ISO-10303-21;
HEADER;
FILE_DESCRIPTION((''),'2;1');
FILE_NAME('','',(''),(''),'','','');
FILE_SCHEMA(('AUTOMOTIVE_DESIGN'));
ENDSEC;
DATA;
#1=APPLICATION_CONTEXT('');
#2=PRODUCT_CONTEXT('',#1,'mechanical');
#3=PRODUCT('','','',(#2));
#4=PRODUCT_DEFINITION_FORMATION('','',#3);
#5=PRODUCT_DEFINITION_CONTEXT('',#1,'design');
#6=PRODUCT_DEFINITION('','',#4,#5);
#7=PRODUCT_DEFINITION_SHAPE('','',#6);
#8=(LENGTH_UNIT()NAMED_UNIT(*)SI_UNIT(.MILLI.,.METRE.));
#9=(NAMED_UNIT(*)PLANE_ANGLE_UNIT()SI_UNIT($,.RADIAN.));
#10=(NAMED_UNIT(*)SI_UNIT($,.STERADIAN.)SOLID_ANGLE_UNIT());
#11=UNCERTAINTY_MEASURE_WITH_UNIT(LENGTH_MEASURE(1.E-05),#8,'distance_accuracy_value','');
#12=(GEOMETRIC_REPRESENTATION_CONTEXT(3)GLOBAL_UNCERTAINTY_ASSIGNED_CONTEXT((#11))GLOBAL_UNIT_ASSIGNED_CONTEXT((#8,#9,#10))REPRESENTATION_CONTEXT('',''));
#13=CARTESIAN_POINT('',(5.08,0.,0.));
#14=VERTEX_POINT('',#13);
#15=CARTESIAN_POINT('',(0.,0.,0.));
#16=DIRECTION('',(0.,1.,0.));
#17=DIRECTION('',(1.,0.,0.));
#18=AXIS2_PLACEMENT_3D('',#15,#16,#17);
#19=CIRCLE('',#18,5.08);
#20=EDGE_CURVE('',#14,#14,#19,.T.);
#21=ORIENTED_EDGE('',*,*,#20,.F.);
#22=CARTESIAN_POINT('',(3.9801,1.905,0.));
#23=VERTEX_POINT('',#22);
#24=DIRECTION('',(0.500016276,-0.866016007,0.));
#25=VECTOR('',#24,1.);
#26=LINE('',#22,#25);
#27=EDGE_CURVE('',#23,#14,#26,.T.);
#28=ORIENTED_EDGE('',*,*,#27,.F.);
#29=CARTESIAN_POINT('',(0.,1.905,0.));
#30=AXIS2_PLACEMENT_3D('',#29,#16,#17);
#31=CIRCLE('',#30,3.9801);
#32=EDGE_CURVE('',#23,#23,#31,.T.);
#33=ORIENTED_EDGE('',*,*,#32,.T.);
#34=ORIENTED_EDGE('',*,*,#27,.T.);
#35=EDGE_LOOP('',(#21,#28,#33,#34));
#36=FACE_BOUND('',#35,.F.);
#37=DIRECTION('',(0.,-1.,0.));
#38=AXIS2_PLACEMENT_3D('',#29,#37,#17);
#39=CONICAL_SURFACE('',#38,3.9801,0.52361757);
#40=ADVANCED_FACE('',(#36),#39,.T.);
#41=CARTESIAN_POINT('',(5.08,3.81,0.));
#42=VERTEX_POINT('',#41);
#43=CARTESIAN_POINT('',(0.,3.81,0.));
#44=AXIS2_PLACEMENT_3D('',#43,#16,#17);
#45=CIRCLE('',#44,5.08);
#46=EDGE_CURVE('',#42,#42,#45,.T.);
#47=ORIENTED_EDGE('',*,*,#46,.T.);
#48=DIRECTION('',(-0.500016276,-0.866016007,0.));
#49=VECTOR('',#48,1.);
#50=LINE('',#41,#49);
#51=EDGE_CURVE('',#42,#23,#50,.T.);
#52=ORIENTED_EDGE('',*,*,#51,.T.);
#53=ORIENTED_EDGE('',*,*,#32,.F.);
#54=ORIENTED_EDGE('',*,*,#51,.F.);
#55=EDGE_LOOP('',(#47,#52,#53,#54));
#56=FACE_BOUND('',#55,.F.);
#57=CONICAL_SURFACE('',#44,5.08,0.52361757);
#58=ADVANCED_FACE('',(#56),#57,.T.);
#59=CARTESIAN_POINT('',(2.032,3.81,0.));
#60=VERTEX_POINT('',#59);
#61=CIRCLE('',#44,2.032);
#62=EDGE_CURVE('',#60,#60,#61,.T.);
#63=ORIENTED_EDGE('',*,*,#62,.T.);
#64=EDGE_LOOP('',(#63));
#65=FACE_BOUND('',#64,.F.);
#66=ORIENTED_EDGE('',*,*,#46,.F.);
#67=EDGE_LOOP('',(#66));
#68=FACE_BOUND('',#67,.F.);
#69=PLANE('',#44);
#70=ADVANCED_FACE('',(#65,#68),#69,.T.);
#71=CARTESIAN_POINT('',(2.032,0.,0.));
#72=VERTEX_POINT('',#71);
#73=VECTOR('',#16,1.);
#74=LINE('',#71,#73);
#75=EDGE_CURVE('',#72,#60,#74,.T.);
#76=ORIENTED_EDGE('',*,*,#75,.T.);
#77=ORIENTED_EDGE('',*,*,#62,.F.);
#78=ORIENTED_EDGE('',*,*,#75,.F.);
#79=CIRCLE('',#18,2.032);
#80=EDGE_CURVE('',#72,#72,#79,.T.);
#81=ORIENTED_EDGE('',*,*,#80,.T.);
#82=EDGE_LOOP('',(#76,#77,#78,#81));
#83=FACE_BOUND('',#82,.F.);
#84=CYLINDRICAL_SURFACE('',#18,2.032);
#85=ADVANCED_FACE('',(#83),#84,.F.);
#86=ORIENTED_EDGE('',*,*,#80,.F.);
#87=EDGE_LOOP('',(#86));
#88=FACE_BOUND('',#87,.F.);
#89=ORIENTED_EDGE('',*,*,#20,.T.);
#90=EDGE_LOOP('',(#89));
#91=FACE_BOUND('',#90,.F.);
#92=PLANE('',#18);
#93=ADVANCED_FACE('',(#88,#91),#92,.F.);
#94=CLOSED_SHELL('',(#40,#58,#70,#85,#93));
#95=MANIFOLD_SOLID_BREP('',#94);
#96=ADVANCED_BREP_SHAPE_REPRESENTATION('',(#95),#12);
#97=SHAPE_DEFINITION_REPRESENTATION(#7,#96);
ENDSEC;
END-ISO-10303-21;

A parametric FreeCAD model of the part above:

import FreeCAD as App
import Part
import Sketcher
Q = App.Units.Quantity


def add_polygon(sketch, points):
    """Adds a closed chain of lines whose ends are joined by coincident constraints."""
    first, n = sketch.GeometryCount, len(points)
    for a, b in zip(points, points[1:] + points[:1]):
        sketch.addGeometry(Part.LineSegment(App.Vector(*a, 0), App.Vector(*b, 0)), False)
    for i in range(n):
        sketch.addConstraint(Sketcher.Constraint("Coincident", first + i, 2, first + (i + 1) % n, 1))

doc = App.newDocument("Part")
params = doc.addObject("Spreadsheet::Sheet", "Params")
for row, (alias, value) in enumerate([
    ("sketch1_height", "0.15 in"),
    ("revolution_angle", "360 deg"),
], start=1):
    params.set(f"A{row}", alias)
    params.set(f"B{row}", "=" + value)
    params.setAlias(f"B{row}", alias)

body = doc.addObject("PartDesign::Body", "Body")

sketch1 = doc.addObject("Sketcher::SketchObject", "Sketch")
body.addObject(sketch1)
sketch1.AttachmentSupport = (doc.XY_Plane, [""])
sketch1.MapMode = "FlatFace"
add_polygon(sketch1, [(2.032, 3.81), (2.032, 0), (5.08, 0), (3.9801, 1.905), (5.08, 3.81)])
sketch1.addConstraint([
    Sketcher.Constraint("Vertical", 0),
    Sketcher.Constraint("Horizontal", 1),
    Sketcher.Constraint("Horizontal", 4),
    Sketcher.Constraint("PointOnObject", 0, 2, -1),
    Sketcher.Constraint("Vertical", 1, 2, 3, 2),
    Sketcher.Constraint("Equal", 2, 3),
    Sketcher.Constraint("DistanceY", 0, 2, 0, 1, Q("0.15 in")),
    Sketcher.Constraint("DistanceX", -1, 1, 1, 2, Q("0.2 in")),
    Sketcher.Constraint("DistanceX", -1, 1, 0, 2, Q("0.08 in")),
    Sketcher.Constraint("Angle", 2, Q("120.001 deg")),
])
sketch1.setExpression("Constraints[11]", "Params.sketch1_height")
revolution = doc.addObject("PartDesign::Revolution", "Revolution")
body.addObject(revolution)
revolution.Profile = sketch1
revolution.ReferenceAxis = (sketch1, ["V_Axis"])
revolution.setExpression("Angle", "Params.revolution_angle")

doc.recompute()
